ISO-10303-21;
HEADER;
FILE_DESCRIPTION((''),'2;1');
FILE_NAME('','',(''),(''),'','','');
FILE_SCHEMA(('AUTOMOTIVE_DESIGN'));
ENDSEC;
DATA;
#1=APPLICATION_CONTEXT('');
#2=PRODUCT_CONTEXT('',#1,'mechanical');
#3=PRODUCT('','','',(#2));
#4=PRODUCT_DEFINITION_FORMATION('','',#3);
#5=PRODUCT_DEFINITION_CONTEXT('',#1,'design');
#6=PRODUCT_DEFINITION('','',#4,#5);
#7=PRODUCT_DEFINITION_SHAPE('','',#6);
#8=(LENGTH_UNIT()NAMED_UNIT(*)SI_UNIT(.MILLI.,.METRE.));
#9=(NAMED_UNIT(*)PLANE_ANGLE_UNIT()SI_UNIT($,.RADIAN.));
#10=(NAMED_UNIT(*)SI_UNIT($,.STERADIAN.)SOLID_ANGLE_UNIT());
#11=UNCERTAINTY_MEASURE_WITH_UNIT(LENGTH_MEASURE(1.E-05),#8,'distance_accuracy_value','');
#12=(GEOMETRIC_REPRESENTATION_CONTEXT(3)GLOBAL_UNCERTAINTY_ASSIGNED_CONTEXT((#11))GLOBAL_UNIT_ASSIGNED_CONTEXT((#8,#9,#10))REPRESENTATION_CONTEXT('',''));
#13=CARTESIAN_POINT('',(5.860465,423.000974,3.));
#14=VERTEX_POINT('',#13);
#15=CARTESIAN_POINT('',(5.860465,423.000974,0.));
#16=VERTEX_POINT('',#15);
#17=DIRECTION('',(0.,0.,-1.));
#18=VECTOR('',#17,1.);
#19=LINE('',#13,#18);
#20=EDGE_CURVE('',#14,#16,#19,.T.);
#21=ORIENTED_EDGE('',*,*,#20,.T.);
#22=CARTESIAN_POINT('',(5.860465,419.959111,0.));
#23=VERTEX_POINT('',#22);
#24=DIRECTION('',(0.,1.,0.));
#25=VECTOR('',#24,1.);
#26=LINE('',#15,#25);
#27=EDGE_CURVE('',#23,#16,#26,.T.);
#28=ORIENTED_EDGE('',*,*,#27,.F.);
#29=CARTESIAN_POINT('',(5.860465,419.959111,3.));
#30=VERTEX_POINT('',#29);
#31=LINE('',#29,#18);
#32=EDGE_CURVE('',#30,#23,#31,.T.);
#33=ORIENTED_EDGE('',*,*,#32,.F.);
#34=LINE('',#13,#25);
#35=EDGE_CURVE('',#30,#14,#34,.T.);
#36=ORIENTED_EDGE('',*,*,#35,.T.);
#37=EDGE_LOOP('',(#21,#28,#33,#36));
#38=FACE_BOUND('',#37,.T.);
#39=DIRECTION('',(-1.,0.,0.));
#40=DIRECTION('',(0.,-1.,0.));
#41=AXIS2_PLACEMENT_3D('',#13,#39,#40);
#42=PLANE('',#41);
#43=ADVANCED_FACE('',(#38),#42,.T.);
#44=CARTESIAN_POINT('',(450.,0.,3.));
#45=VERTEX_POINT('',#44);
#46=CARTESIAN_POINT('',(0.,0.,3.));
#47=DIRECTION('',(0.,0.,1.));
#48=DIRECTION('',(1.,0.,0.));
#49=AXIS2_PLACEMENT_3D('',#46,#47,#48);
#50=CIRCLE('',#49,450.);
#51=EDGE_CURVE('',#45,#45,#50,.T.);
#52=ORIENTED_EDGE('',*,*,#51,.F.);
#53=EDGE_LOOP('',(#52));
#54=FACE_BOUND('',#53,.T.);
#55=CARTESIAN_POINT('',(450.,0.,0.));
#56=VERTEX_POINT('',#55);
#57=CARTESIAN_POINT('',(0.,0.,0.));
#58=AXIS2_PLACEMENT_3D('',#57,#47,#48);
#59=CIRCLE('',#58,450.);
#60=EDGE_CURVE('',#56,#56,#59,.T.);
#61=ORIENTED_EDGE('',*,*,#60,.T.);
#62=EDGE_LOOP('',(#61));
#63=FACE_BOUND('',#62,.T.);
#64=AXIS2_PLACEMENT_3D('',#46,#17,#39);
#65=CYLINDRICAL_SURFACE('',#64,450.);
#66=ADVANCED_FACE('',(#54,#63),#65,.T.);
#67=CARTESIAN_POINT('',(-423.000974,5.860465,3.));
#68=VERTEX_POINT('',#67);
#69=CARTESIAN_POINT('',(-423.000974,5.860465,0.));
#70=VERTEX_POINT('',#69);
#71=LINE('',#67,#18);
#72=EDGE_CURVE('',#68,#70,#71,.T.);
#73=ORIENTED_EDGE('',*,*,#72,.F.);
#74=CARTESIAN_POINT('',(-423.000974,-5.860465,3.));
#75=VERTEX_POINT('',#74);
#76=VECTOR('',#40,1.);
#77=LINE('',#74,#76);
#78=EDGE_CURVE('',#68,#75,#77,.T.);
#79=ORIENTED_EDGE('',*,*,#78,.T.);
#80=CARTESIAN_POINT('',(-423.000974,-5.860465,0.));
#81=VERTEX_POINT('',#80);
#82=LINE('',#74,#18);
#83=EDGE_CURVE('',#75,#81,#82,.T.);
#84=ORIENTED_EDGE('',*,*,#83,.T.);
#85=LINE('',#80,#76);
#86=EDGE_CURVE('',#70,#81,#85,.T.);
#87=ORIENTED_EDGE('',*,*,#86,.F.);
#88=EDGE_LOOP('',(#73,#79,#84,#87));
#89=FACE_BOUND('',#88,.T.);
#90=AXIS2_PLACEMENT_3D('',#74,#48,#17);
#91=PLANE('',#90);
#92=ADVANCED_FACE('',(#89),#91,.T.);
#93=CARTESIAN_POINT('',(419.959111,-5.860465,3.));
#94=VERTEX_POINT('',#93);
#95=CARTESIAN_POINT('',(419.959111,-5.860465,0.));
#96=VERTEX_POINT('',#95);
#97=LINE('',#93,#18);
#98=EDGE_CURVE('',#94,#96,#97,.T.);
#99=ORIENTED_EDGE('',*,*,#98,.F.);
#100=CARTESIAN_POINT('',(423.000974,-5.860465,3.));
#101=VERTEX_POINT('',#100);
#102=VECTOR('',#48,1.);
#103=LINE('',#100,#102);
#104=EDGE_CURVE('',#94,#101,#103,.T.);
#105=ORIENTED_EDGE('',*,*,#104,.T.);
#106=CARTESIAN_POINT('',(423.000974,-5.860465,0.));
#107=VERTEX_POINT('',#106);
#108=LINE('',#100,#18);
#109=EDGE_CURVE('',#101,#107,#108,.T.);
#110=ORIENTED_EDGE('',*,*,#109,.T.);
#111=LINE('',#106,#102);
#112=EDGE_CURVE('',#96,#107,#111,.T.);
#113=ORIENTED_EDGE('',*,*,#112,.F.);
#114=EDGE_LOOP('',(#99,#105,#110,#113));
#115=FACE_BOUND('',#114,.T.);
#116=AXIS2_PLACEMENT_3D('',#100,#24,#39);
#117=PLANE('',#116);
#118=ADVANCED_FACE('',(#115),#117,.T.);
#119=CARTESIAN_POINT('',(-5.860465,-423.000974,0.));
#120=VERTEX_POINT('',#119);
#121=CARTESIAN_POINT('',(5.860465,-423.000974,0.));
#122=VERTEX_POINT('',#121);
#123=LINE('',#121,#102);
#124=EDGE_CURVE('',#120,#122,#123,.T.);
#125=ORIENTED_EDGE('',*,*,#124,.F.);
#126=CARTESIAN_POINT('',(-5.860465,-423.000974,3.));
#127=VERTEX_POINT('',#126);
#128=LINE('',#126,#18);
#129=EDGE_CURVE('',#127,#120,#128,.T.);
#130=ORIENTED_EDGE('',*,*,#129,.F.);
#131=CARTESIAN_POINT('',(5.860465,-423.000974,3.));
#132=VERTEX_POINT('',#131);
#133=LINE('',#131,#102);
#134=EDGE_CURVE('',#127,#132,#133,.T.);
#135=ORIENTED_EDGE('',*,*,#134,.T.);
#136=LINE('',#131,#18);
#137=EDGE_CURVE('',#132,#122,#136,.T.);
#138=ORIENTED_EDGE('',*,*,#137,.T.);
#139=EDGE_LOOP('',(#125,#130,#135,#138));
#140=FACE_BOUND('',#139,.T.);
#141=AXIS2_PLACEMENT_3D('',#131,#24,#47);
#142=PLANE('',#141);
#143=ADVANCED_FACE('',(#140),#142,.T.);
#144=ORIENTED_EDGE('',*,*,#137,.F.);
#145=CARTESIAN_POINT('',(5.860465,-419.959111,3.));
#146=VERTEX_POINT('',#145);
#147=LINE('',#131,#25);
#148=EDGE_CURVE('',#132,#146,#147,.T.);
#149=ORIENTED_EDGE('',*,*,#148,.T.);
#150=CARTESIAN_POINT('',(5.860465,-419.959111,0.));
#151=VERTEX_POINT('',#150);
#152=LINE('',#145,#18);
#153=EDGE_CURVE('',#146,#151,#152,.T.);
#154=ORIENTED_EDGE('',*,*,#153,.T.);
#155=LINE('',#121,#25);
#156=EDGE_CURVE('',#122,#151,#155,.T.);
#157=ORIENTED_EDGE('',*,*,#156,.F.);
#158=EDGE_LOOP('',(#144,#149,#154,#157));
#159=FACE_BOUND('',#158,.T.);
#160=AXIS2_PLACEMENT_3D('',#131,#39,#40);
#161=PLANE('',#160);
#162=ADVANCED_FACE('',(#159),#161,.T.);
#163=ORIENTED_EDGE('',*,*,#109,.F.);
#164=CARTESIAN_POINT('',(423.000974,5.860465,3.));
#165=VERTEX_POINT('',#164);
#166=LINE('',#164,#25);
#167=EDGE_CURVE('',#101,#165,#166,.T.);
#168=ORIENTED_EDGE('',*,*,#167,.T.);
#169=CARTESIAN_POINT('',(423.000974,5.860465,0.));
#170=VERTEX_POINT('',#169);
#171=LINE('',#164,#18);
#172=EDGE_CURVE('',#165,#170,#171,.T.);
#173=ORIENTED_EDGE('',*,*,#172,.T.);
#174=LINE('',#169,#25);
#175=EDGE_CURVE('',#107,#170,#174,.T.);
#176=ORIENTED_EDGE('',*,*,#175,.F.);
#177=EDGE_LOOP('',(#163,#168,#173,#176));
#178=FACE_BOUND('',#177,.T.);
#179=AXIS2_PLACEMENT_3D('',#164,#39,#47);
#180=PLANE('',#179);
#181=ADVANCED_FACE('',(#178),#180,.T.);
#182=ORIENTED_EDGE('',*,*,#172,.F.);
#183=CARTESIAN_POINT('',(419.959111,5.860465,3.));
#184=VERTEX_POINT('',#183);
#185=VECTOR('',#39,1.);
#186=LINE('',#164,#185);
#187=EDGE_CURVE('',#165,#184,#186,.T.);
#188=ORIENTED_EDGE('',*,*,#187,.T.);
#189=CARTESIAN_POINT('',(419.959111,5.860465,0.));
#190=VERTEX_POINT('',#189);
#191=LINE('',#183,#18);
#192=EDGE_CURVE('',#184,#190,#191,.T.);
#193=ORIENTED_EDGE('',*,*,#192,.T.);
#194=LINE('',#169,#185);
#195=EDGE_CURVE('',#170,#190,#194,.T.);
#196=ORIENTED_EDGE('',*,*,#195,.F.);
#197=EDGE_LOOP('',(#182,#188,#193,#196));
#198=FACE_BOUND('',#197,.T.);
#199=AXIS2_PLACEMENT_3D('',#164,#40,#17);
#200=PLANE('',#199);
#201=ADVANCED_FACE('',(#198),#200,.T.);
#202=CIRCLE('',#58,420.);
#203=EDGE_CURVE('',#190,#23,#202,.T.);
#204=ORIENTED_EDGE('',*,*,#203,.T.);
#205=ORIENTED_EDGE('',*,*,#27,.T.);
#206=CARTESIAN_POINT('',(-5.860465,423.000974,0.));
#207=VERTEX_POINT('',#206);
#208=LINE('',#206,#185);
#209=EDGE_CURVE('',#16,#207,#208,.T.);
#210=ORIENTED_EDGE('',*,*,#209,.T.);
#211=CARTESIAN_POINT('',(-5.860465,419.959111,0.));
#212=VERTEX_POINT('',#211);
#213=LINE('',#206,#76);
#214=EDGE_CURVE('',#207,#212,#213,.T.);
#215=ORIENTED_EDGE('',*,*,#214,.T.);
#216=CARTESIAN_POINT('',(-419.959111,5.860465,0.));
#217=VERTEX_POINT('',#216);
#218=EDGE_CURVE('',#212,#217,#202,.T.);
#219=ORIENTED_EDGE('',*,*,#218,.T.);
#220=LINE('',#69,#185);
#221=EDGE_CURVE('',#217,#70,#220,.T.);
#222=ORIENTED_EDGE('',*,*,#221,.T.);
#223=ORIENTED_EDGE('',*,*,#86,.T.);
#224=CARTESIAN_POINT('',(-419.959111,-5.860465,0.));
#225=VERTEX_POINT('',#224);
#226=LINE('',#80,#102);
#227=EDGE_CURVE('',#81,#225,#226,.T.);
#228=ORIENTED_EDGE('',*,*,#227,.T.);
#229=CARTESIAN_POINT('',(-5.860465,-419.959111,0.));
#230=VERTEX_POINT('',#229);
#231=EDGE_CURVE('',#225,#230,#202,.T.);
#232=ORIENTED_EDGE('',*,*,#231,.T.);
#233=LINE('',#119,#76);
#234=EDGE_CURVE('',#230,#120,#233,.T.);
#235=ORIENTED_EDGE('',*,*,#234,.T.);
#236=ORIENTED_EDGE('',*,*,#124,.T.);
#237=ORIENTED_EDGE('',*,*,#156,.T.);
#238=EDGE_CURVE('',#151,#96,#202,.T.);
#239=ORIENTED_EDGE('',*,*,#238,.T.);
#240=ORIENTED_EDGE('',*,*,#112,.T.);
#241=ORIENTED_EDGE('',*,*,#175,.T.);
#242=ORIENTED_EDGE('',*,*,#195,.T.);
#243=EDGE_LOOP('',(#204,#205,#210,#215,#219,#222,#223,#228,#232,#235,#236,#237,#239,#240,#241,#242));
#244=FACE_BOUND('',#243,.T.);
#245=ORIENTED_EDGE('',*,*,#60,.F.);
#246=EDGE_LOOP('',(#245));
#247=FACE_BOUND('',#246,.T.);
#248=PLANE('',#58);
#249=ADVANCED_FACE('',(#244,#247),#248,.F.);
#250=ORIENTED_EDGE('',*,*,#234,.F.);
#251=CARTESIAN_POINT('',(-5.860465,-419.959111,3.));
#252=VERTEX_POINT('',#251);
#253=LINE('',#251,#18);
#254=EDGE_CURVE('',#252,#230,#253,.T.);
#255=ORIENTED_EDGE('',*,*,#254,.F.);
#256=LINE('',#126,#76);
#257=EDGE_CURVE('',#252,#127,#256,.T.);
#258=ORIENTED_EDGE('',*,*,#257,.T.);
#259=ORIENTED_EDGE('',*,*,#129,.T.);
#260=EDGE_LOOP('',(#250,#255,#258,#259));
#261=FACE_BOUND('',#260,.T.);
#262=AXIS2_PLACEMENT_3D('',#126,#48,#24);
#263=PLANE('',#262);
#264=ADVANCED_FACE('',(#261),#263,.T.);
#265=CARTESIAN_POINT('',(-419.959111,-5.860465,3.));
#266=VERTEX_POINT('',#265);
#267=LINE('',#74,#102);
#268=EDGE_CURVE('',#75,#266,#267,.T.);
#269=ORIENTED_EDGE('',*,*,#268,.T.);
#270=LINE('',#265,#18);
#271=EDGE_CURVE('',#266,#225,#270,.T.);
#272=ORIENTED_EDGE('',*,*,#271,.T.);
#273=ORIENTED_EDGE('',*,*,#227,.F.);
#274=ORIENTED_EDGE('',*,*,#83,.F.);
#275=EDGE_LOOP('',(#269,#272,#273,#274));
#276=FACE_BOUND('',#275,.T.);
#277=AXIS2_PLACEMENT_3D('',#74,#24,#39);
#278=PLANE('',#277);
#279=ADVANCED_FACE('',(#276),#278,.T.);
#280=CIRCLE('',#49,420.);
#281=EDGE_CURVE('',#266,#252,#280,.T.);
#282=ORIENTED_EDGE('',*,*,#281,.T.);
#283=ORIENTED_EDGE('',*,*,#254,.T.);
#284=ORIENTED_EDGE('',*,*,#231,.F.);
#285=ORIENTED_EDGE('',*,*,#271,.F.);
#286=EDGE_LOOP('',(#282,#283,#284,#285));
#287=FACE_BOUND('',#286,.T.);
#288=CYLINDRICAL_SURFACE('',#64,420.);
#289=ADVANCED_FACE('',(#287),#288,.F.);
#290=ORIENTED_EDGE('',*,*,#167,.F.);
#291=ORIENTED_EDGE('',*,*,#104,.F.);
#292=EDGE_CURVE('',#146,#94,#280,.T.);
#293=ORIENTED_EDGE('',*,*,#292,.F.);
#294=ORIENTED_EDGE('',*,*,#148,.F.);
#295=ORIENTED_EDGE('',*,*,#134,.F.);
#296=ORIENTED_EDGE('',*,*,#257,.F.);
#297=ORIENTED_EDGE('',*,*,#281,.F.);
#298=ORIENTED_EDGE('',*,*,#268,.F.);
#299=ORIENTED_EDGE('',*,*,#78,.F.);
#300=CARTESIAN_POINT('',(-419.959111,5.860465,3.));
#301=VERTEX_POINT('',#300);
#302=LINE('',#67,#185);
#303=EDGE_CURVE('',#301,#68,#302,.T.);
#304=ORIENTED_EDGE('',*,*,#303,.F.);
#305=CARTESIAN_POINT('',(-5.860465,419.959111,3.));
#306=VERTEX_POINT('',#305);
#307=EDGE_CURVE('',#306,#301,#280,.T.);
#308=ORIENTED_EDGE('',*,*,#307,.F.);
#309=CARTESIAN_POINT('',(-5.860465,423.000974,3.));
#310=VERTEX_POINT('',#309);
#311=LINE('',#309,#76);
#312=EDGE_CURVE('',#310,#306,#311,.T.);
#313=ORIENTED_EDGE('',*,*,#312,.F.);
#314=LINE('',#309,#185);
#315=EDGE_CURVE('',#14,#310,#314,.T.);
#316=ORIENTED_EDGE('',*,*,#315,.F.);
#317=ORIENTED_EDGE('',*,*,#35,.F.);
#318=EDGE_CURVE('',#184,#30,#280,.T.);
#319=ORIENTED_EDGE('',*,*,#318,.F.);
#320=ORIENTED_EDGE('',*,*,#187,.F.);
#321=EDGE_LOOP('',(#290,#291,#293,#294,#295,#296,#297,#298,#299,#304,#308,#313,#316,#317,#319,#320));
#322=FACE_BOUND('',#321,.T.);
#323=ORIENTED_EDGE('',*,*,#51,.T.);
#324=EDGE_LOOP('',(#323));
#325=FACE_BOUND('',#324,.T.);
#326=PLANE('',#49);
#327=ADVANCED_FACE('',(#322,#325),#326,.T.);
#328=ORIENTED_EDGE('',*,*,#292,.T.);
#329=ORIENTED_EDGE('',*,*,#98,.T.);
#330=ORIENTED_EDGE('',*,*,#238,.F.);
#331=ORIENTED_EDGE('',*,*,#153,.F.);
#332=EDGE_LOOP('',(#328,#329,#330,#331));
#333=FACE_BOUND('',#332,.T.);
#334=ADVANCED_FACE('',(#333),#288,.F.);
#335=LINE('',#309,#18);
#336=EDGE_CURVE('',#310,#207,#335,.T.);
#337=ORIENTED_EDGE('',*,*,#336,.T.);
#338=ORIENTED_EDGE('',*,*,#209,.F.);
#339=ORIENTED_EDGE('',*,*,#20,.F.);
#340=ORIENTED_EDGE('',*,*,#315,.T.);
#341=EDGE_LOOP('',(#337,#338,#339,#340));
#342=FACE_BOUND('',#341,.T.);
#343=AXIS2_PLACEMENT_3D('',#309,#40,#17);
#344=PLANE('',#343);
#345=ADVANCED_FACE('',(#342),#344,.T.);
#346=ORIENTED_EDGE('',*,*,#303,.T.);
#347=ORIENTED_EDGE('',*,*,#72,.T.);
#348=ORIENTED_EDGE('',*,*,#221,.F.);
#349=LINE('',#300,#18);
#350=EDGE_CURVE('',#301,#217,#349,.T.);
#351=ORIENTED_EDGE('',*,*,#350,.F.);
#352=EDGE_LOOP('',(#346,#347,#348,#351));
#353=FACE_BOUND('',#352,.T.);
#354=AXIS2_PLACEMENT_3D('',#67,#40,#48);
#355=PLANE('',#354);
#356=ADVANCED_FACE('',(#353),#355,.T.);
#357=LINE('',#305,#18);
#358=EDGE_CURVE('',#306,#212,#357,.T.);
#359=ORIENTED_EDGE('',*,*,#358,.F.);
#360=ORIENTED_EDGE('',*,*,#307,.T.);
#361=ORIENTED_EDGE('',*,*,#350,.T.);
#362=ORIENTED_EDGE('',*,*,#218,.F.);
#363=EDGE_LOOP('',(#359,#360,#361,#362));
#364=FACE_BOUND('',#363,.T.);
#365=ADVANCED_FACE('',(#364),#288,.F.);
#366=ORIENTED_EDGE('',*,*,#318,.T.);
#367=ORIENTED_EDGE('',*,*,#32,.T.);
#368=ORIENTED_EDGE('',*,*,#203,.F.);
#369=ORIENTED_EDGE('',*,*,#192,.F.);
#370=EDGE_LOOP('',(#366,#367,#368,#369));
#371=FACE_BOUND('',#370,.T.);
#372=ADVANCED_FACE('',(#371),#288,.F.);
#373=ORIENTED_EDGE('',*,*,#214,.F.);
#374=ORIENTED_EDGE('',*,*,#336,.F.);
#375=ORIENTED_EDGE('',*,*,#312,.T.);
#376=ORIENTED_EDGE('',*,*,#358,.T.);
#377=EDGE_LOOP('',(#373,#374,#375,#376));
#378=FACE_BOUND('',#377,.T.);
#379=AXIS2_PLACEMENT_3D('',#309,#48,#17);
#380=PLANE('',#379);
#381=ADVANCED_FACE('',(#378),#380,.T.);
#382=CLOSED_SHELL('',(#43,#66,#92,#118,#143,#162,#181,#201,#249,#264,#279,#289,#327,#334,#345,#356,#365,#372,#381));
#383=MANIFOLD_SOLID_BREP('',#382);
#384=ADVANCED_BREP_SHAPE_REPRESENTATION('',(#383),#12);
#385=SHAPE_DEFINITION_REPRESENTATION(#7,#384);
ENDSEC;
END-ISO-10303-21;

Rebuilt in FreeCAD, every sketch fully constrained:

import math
import FreeCAD as App
import Part
import Sketcher
Q = App.Units.Quantity

doc = App.newDocument("Part")
params = doc.addObject("Spreadsheet::Sheet", "Params")
for row, (alias, value) in enumerate([
    ("sketch1_diameter", "900 mm"),
    ("sketch1_radius", "420 mm"),
    ("pad1_length", "3 mm"),
], start=1):
    params.set(f"A{row}", alias)
    params.set(f"B{row}", "=" + value)
    params.setAlias(f"B{row}", alias)

body = doc.addObject("PartDesign::Body", "Body")

# Sketch on XY plane
sketch1 = body.newObject("Sketcher::SketchObject", "Sketch")
sketch1.AttachmentSupport = (doc.getObject("XY_Plane"), [""])
sketch1.MapMode = "FlatFace"
sketch1.addGeometry(Part.Circle(App.Vector(0, 0, 0), App.Vector(0, 0, 1), 450), False)
sketch1.addGeometry(Part.LineSegment(App.Vector(420, 5.9, 0), App.Vector(423, 5.9, 0)), False)
sketch1.addGeometry(Part.LineSegment(App.Vector(423, 5.9, 0), App.Vector(423, -5.9, 0)), False)
sketch1.addGeometry(Part.LineSegment(App.Vector(423, -5.9, 0), App.Vector(420, -5.9, 0)), False)
sketch1.addGeometry(Part.ArcOfCircle(Part.Circle(App.Vector(0, 0, 0), App.Vector(0, 0, 1), 420), math.radians(-89), math.radians(-1)), False)
sketch1.addGeometry(Part.LineSegment(App.Vector(5.9, -420, 0), App.Vector(5.9, -423, 0)), False)
sketch1.addGeometry(Part.LineSegment(App.Vector(5.9, -423, 0), App.Vector(-5.9, -423, 0)), False)
sketch1.addGeometry(Part.LineSegment(App.Vector(-5.9, -423, 0), App.Vector(-5.9, -420, 0)), False)
sketch1.addGeometry(Part.ArcOfCircle(Part.Circle(App.Vector(0, 0, 0), App.Vector(0, 0, 1), 420), math.radians(-179), math.radians(-91)), False)
sketch1.addGeometry(Part.LineSegment(App.Vector(-420, -5.9, 0), App.Vector(-423, -5.9, 0)), False)
sketch1.addGeometry(Part.LineSegment(App.Vector(-423, -5.9, 0), App.Vector(-423, 5.9, 0)), False)
sketch1.addGeometry(Part.LineSegment(App.Vector(-423, 5.9, 0), App.Vector(-420, 5.9, 0)), False)
sketch1.addGeometry(Part.ArcOfCircle(Part.Circle(App.Vector(0, 0, 0), App.Vector(0, 0, 1), 420), math.radians(91), math.radians(179)), False)
sketch1.addGeometry(Part.LineSegment(App.Vector(-5.9, 420, 0), App.Vector(-5.9, 423, 0)), False)
sketch1.addGeometry(Part.LineSegment(App.Vector(-5.9, 423, 0), App.Vector(5.9, 423, 0)), False)
sketch1.addGeometry(Part.LineSegment(App.Vector(5.9, 423, 0), App.Vector(5.9, 420, 0)), False)
sketch1.addGeometry(Part.ArcOfCircle(Part.Circle(App.Vector(0, 0, 0), App.Vector(0, 0, 1), 420), math.radians(1), math.radians(89)), False)
sketch1.addConstraint(Sketcher.Constraint("Coincident", 1, 2, 2, 1))
sketch1.addConstraint(Sketcher.Constraint("Coincident", 2, 2, 3, 1))
sketch1.addConstraint(Sketcher.Constraint("Coincident", 3, 2, 4, 2))
sketch1.addConstraint(Sketcher.Constraint("Coincident", 4, 1, 5, 1))
sketch1.addConstraint(Sketcher.Constraint("Coincident", 5, 2, 6, 1))
sketch1.addConstraint(Sketcher.Constraint("Coincident", 6, 2, 7, 1))
sketch1.addConstraint(Sketcher.Constraint("Coincident", 7, 2, 8, 2))
sketch1.addConstraint(Sketcher.Constraint("Coincident", 8, 1, 9, 1))
sketch1.addConstraint(Sketcher.Constraint("Coincident", 9, 2, 10, 1))
sketch1.addConstraint(Sketcher.Constraint("Coincident", 10, 2, 11, 1))
sketch1.addConstraint(Sketcher.Constraint("Coincident", 11, 2, 12, 2))
sketch1.addConstraint(Sketcher.Constraint("Coincident", 12, 1, 13, 1))
sketch1.addConstraint(Sketcher.Constraint("Coincident", 13, 2, 14, 1))
sketch1.addConstraint(Sketcher.Constraint("Coincident", 14, 2, 15, 1))
sketch1.addConstraint(Sketcher.Constraint("Coincident", 15, 2, 16, 2))
sketch1.addConstraint(Sketcher.Constraint("Coincident", 16, 1, 1, 1))
sketch1.addConstraint(Sketcher.Constraint("Horizontal", 1))
sketch1.addConstraint(Sketcher.Constraint("Vertical", 2))
sketch1.addConstraint(Sketcher.Constraint("Horizontal", 3))
sketch1.addConstraint(Sketcher.Constraint("Vertical", 5))
sketch1.addConstraint(Sketcher.Constraint("Horizontal", 6))
sketch1.addConstraint(Sketcher.Constraint("Vertical", 7))
sketch1.addConstraint(Sketcher.Constraint("Horizontal", 9))
sketch1.addConstraint(Sketcher.Constraint("Vertical", 10))
sketch1.addConstraint(Sketcher.Constraint("Horizontal", 11))
sketch1.addConstraint(Sketcher.Constraint("Vertical", 13))
sketch1.addConstraint(Sketcher.Constraint("Horizontal", 14))
sketch1.addConstraint(Sketcher.Constraint("Vertical", 15))
sketch1.addConstraint(Sketcher.Constraint("Coincident", 0, 3, -1, 1))
sketch1.addConstraint(Sketcher.Constraint("Coincident", 4, 3, -1, 1))
sketch1.addConstraint(Sketcher.Constraint("Coincident", 8, 3, -1, 1))
sketch1.addConstraint(Sketcher.Constraint("Coincident", 12, 3, -1, 1))
sketch1.addConstraint(Sketcher.Constraint("Coincident", 16, 3, -1, 1))
sketch1.addConstraint(Sketcher.Constraint("Equal", 4, 8))
sketch1.addConstraint(Sketcher.Constraint("Equal", 8, 12))
sketch1.addConstraint(Sketcher.Constraint("Equal", 12, 16))
sketch1.addConstraint(Sketcher.Constraint("Symmetric", 1, 2, 9, 2, -1, 1))
sketch1.addConstraint(Sketcher.Constraint("Symmetric", 5, 2, 13, 2, -1, 1))
sketch1.addConstraint(Sketcher.Constraint("Horizontal", 1, 2, 10, 2))
sketch1.addConstraint(Sketcher.Constraint("Vertical", 5, 2, 14, 2))
sketch1.addConstraint(Sketcher.Constraint("Equal", 1, 3))
sketch1.addConstraint(Sketcher.Constraint("Equal", 6, 14))
sketch1.addConstraint(Sketcher.Constraint("Equal", 14, 2))
sketch1.addConstraint(Sketcher.Constraint("Equal", 11, 5))
sketch1.addConstraint(Sketcher.Constraint("Diameter", 0, Q("900 mm")))
sketch1.addConstraint(Sketcher.Constraint("Radius", 4, Q("420 mm")))
sketch1.addConstraint(Sketcher.Constraint("DistanceX", 6, 2, 6, 1, Q("11.72093 mm")))
sketch1.addConstraint(Sketcher.Constraint("DistanceX", 1, 1, 1, 2, Q("3.041863 mm")))
sketch1.setExpression("Constraints[44]", "Params.sketch1_diameter")
sketch1.setExpression("Constraints[45]", "Params.sketch1_radius")
pad1 = body.newObject("PartDesign::Pad", "Pad")
pad1.Profile = sketch1
pad1.setExpression("Length", "Params.pad1_length")

doc.recompute()
